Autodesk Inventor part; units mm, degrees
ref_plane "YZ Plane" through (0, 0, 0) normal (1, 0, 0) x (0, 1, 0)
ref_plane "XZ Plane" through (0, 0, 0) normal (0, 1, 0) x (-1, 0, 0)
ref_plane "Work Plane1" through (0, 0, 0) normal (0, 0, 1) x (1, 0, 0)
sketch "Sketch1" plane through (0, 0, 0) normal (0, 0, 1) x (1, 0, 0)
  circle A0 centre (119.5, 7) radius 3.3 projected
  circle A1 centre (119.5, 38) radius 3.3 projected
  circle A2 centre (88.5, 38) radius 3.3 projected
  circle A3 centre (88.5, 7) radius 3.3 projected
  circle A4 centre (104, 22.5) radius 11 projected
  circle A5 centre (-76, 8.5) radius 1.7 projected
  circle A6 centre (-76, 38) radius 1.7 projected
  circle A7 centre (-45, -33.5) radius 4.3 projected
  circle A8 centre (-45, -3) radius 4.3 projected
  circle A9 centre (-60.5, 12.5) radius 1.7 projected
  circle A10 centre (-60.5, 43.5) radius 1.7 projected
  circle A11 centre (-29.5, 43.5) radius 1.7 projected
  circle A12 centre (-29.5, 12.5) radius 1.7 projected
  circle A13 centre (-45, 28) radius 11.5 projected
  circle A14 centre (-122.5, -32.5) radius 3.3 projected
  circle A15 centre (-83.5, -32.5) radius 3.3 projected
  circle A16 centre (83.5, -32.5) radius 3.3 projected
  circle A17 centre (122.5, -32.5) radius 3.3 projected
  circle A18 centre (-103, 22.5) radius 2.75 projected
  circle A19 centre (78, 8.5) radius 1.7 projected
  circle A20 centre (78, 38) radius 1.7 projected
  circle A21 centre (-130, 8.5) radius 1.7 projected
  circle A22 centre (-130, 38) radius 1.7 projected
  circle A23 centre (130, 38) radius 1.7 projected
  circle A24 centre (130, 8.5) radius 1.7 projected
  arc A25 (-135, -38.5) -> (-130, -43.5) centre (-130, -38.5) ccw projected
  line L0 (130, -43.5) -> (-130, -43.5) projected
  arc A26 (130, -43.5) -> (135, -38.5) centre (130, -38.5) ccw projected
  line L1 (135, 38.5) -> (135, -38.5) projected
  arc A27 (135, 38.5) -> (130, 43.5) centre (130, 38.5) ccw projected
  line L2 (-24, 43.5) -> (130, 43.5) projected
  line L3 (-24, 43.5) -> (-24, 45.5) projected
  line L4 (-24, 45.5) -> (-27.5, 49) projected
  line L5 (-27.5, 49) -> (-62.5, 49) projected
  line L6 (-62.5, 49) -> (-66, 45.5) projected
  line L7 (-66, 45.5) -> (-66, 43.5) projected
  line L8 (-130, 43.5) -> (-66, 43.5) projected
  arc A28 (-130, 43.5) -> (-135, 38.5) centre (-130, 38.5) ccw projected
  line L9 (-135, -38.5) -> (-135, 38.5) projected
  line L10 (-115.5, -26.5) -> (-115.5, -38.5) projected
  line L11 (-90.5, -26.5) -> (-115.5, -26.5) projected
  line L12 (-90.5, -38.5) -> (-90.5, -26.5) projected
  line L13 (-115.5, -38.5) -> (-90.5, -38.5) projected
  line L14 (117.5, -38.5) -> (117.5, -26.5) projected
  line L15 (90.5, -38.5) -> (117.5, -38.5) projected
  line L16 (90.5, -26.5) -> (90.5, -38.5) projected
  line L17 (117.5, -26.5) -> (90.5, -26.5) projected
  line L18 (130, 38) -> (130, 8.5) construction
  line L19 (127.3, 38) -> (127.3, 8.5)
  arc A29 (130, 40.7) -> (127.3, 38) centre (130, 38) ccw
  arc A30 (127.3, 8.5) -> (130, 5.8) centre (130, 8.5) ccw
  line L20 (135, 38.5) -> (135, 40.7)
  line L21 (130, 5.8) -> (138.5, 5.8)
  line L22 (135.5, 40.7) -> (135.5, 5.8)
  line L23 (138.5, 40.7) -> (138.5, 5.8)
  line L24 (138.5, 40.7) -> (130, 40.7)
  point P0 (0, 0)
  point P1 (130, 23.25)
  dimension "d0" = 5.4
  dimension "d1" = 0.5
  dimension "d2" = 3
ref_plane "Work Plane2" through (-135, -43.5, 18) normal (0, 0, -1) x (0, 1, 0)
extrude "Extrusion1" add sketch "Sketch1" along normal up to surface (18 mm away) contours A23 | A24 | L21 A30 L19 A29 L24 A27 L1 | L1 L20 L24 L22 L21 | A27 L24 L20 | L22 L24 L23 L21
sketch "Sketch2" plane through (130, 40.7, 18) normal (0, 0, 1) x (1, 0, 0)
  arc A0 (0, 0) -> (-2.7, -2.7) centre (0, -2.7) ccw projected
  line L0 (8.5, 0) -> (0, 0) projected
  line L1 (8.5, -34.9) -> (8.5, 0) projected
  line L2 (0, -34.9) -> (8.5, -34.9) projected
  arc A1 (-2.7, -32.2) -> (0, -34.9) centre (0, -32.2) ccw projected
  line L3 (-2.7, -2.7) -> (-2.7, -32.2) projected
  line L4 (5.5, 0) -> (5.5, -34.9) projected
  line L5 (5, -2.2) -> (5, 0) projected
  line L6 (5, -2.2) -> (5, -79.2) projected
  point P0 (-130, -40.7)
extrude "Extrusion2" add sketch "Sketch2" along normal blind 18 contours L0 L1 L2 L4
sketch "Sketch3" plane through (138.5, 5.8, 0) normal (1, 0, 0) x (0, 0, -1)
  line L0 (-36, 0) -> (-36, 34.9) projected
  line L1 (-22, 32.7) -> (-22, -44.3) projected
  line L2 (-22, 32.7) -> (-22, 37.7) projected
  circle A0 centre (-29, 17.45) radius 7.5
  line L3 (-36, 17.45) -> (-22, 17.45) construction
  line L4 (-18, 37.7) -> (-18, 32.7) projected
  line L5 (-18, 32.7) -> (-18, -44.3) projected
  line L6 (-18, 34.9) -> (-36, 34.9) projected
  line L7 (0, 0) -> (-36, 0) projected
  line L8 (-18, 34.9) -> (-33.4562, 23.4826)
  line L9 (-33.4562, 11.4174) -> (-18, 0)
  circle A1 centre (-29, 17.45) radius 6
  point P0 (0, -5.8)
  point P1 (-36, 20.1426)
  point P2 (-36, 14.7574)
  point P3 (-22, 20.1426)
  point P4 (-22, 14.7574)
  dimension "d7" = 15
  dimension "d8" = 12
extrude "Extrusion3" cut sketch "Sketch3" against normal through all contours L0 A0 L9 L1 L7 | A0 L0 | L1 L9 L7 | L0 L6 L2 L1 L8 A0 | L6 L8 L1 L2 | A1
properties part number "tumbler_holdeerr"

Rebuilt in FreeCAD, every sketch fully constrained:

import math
import FreeCAD as App
import Part
import Sketcher
Q = App.Units.Quantity

doc = App.newDocument("Part")
body = doc.addObject("PartDesign::Body", "Body")

# Sketch on XY plane
sketch1 = body.newObject("Sketcher::SketchObject", "Sketch")
sketch1.AttachmentSupport = (doc.getObject("XY_Plane"), [""])
sketch1.MapMode = "FlatFace"
sketch1.addGeometry([
    Part.LineSegment(App.Vector(130, 5.8, 0), App.Vector(138.5, 5.8, 0)),  # 0
    Part.LineSegment(App.Vector(138.5, 5.8, 0), App.Vector(138.5, 40.7, 0)),  # 1
    Part.LineSegment(App.Vector(138.5, 40.7, 0), App.Vector(130, 40.7, 0)),  # 2
    Part.ArcOfCircle(Part.Circle(App.Vector(130, 38, 0), App.Vector(0, 0, 1), 2.7), math.radians(90), math.radians(180)),  # 3
    Part.LineSegment(App.Vector(127.3, 38, 0), App.Vector(127.3, 8.5, 0)),  # 4
    Part.ArcOfCircle(Part.Circle(App.Vector(130, 8.5, 0), App.Vector(0, 0, 1), 2.7), math.radians(180), math.radians(270)),  # 5
], False)
sketch1.addConstraint([
    Sketcher.Constraint("Coincident", 0, 2, 1, 1),
    Sketcher.Constraint("Coincident", 1, 2, 2, 1),
    Sketcher.Constraint("Tangent", 2, 2, 3, 1),
    Sketcher.Constraint("Tangent", 3, 2, 4, 1),
    Sketcher.Constraint("Tangent", 4, 2, 5, 1),
    Sketcher.Constraint("Tangent", 5, 2, 0, 1),
    Sketcher.Constraint("Horizontal", 0),
    Sketcher.Constraint("Vertical", 1),
    Sketcher.Constraint("Horizontal", 2),
    Sketcher.Constraint("Vertical", 4),
    Sketcher.Constraint("Equal", 3, 5),
    Sketcher.Constraint("Radius", 3, Q("2.7 mm")),
    Sketcher.Constraint("DistanceX", 0, 1, 0, 2, Q("8.5 mm")),
    Sketcher.Constraint("DistanceY", 1, 1, 1, 2, Q("34.9 mm")),
    Sketcher.Constraint("DistanceX", -1, 1, 3, 3, Q("130 mm")),
    Sketcher.Constraint("DistanceY", -1, 1, 3, 3, Q("38 mm")),
])
pad1 = body.newObject("PartDesign::Pad", "Pad")
pad1.Profile = sketch1
pad1.Length = 18

# Sketch on XY plane
sketch2 = body.newObject("Sketcher::SketchObject", "Sketch001")
sketch2.AttachmentSupport = (doc.getObject("XY_Plane"), [""])
sketch2.MapMode = "FlatFace"
sketch2.AttachmentOffset = App.Placement(App.Vector(0, 0, 18), App.Rotation())
sketch2.addGeometry([
    Part.LineSegment(App.Vector(138.5, 40.7, 0), App.Vector(135.5, 40.7, 0)),
    Part.LineSegment(App.Vector(135.5, 40.7, 0), App.Vector(135.5, 5.8, 0)),
    Part.LineSegment(App.Vector(135.5, 5.8, 0), App.Vector(138.5, 5.8, 0)),
    Part.LineSegment(App.Vector(138.5, 5.8, 0), App.Vector(138.5, 40.7, 0)),
], False)
sketch2.addConstraint([
    Sketcher.Constraint("Coincident", 0, 2, 1, 1),
    Sketcher.Constraint("Coincident", 1, 2, 2, 1),
    Sketcher.Constraint("Coincident", 2, 2, 3, 1),
    Sketcher.Constraint("Coincident", 3, 2, 0, 1),
    Sketcher.Constraint("Horizontal", 0),
    Sketcher.Constraint("Vertical", 1),
    Sketcher.Constraint("Horizontal", 2),
    Sketcher.Constraint("Vertical", 3),
    Sketcher.Constraint("DistanceX", 0, 2, 0, 1, Q("3 mm")),
    Sketcher.Constraint("DistanceY", 1, 2, 1, 1, Q("34.9 mm")),
    Sketcher.Constraint("DistanceX", -1, 1, 0, 2, Q("135.5 mm")),
    Sketcher.Constraint("DistanceY", -1, 1, 0, 2, Q("40.7 mm")),
])
pad2 = body.newObject("PartDesign::Pad", "Pad001")
pad2.Profile = sketch2
pad2.Length = 18

# Sketch on YZ plane
sketch3 = body.newObject("Sketcher::SketchObject", "Sketch002")
sketch3.AttachmentSupport = (doc.getObject("YZ_Plane"), [""])
sketch3.MapMode = "FlatFace"
sketch3.AttachmentOffset = App.Placement(App.Vector(0, 0, 138.5), App.Rotation())
sketch3.addGeometry([
    Part.LineSegment(App.Vector(20.6, 36, 0), App.Vector(5.8, 36, 0)),  # 0
    Part.LineSegment(App.Vector(5.8, 36, 0), App.Vector(5.8, 18, 0)),  # 1
    Part.LineSegment(App.Vector(5.8, 18, 0), App.Vector(17.2, 33.5, 0)),  # 2
    Part.ArcOfCircle(Part.Circle(App.Vector(23.2, 29, 0), App.Vector(0, 0, 1), 7.5), math.radians(111), math.radians(144)),  # 3
    Part.ArcOfCircle(Part.Circle(App.Vector(23.2, 29, 0), App.Vector(0, 0, 1), 7.5), math.radians(69), math.radians(111)),  # 4
    Part.LineSegment(App.Vector(20.6, 36, 0), App.Vector(25.9, 36, 0)),  # 5
    Part.LineSegment(App.Vector(40.7, 36, 0), App.Vector(25.9, 36, 0)),  # 6
    Part.ArcOfCircle(Part.Circle(App.Vector(23.2, 29, 0), App.Vector(0, 0, 1), 7.5), math.radians(36), math.radians(69)),  # 7
    Part.LineSegment(App.Vector(29.3, 33.5, 0), App.Vector(40.7, 18, 0)),  # 8
    Part.LineSegment(App.Vector(40.7, 18, 0), App.Vector(40.7, 36, 0)),  # 9
    Part.Circle(App.Vector(23.2, 29, 0), App.Vector(0, 0, 1), 6),  # 10
], False)
sketch3.addConstraint([
    Sketcher.Constraint("Coincident", 0, 2, 1, 1),
    Sketcher.Constraint("Coincident", 1, 2, 2, 1),
    Sketcher.Constraint("Tangent", 2, 2, 3, 2),
    Sketcher.Constraint("Coincident", 3, 1, 0, 1),
    Sketcher.Constraint("Coincident", 4, 1, 5, 2),
    Sketcher.Constraint("Coincident", 5, 1, 4, 2),
    Sketcher.Constraint("Coincident", 6, 2, 7, 2),
    Sketcher.Constraint("Tangent", 7, 1, 8, 1),
    Sketcher.Constraint("Coincident", 8, 2, 9, 1),
    Sketcher.Constraint("Coincident", 9, 2, 6, 1),
    Sketcher.Constraint("Horizontal", 0),
    Sketcher.Constraint("Vertical", 1),
    Sketcher.Constraint("Horizontal", 5),
    Sketcher.Constraint("Horizontal", 6),
    Sketcher.Constraint("Vertical", 9),
    Sketcher.Constraint("Coincident", 4, 3, 3, 3),
    Sketcher.Constraint("Coincident", 7, 3, 3, 3),
    Sketcher.Constraint("Coincident", 10, 3, 3, 3),
    Sketcher.Constraint("Coincident", 5, 1, 3, 1),
    Sketcher.Constraint("Coincident", 6, 2, 4, 1),
    Sketcher.Constraint("Horizontal", 2, 2, 7, 1),
    Sketcher.Constraint("Horizontal", 1, 2, 8, 2),
    Sketcher.Constraint("Diameter", 10, Q("12 mm")),
    Sketcher.Constraint("Radius", 3, Q("7.5 mm")),
    Sketcher.Constraint("DistanceY", 1, 2, 1, 1, Q("18 mm")),
    Sketcher.Constraint("DistanceY", -1, 1, 3, 3, Q("29 mm")),
    Sketcher.Constraint("DistanceY", -1, 1, 0, 2, Q("36 mm")),
    Sketcher.Constraint("DistanceX", -1, 1, 0, 2, Q("5.8 mm")),
    Sketcher.Constraint("DistanceX", -1, 1, 8, 2, Q("40.7 mm")),
])
pocket1 = body.newObject("PartDesign::Pocket", "Pocket")
pocket1.Profile = sketch3
pocket1.Type = "ThroughAll"

doc.recompute()
